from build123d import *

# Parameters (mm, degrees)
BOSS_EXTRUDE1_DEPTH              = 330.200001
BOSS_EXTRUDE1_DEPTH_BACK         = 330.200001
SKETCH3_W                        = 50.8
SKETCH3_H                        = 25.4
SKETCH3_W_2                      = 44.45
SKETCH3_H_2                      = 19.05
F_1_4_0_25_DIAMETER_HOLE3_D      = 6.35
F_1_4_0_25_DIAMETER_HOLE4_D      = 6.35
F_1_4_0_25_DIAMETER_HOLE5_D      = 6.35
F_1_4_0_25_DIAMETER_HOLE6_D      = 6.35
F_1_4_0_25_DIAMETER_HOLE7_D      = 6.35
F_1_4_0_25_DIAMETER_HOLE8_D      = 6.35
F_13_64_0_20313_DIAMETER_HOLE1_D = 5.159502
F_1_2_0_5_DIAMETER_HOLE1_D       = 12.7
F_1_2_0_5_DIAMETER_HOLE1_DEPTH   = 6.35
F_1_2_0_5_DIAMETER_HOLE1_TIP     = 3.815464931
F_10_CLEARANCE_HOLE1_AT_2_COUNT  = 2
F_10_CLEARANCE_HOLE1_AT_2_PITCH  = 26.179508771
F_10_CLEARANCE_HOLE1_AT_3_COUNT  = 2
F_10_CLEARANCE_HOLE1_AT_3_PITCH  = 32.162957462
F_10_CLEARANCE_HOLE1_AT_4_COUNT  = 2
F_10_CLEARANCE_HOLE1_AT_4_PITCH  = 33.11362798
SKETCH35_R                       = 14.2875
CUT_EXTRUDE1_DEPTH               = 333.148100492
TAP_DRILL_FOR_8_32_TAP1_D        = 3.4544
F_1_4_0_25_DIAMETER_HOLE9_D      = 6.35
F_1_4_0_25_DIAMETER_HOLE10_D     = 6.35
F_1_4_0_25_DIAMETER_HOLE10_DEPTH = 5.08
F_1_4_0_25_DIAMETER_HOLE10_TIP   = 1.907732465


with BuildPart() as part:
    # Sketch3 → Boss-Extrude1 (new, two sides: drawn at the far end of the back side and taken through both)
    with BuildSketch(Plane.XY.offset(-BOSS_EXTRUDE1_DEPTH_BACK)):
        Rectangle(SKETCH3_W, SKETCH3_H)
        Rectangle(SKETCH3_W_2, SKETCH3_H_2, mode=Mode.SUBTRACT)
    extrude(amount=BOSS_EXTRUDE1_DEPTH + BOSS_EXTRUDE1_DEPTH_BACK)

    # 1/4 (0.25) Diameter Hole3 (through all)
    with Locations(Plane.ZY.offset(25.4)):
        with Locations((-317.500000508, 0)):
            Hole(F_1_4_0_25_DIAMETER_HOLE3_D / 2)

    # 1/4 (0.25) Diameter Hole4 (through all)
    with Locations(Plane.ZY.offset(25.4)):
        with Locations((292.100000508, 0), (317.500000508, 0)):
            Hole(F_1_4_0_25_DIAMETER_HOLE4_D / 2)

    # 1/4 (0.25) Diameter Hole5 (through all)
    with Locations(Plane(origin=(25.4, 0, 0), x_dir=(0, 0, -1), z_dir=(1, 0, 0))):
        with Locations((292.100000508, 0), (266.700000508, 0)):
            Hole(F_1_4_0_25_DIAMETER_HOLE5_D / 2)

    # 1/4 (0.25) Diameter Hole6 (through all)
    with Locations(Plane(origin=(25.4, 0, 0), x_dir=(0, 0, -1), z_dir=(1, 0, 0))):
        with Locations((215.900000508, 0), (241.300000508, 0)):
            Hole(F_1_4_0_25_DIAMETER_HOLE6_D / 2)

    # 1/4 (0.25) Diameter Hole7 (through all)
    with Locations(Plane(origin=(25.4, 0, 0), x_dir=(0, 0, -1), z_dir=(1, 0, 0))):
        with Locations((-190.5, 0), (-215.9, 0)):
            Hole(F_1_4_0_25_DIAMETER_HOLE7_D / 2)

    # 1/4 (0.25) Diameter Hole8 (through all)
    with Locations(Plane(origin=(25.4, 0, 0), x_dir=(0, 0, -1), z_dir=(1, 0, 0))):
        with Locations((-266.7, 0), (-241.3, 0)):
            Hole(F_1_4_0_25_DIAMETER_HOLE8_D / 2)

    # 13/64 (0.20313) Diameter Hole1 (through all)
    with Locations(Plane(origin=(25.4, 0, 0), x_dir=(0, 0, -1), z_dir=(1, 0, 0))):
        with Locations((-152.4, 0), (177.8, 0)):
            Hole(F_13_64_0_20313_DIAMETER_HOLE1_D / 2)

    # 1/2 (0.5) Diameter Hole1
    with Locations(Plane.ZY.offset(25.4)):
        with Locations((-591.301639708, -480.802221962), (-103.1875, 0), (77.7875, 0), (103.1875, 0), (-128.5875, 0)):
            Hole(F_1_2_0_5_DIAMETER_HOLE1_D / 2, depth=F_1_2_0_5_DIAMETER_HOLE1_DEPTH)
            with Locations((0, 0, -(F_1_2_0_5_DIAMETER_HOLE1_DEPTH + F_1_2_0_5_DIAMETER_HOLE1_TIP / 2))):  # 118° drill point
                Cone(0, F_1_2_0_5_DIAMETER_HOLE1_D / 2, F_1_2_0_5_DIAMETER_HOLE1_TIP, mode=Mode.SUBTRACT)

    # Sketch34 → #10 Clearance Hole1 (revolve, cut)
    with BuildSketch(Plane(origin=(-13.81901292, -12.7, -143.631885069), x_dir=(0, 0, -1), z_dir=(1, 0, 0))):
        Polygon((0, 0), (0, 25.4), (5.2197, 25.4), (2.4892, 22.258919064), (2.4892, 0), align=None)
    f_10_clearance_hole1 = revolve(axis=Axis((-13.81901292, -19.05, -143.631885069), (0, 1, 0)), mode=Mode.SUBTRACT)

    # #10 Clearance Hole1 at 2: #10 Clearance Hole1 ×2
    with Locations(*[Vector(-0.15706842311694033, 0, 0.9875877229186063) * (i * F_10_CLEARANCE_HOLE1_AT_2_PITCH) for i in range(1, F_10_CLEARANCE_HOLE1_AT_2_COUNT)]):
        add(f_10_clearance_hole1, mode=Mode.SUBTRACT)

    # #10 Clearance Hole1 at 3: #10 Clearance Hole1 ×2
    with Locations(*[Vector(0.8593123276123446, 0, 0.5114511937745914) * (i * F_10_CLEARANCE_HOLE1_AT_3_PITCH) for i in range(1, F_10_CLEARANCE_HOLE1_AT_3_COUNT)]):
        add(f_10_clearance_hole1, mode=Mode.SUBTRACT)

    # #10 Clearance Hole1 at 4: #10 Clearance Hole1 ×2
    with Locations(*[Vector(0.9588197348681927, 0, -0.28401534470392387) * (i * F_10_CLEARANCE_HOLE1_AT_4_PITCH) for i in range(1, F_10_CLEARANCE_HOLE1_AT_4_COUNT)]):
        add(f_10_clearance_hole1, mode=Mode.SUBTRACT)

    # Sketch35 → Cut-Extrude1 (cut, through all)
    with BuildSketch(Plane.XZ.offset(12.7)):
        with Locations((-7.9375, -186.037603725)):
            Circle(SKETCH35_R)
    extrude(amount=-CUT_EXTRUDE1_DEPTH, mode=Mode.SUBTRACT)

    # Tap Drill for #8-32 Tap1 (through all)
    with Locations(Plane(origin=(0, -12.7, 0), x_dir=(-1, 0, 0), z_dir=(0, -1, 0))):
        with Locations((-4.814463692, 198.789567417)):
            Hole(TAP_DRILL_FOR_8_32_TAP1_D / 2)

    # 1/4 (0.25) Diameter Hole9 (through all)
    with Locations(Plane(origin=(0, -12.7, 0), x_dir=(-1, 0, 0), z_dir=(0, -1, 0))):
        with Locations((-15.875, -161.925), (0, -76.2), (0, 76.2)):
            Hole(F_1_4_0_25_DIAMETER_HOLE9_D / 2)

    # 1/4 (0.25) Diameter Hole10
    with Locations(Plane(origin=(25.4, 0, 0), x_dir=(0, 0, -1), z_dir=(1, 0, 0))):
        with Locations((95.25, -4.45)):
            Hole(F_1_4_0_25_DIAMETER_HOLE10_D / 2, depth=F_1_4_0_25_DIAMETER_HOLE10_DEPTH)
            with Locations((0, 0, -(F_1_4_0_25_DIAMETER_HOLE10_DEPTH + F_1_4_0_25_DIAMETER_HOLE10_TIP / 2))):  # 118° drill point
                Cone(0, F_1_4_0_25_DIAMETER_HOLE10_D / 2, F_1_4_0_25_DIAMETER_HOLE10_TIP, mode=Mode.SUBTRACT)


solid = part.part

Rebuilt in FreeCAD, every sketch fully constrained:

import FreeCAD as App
import Part
import Sketcher
Q = App.Units.Quantity

doc = App.newDocument("Part")
body = doc.addObject("PartDesign::Body", "Body")

# Sketch on XY plane
sketch1 = body.newObject("Sketcher::SketchObject", "Sketch")
sketch1.AttachmentSupport = (doc.getObject("XY_Plane"), [""])
sketch1.MapMode = "FlatFace"
sketch1.addGeometry([
    Part.LineSegment(App.Vector(-25, 13, 0), App.Vector(-25, -13, 0)),  # 0
    Part.LineSegment(App.Vector(-25, -13, 0), App.Vector(25, -13, 0)),  # 1
    Part.LineSegment(App.Vector(25, -13, 0), App.Vector(25, 13, 0)),  # 2
    Part.LineSegment(App.Vector(25, 13, 0), App.Vector(-25, 13, 0)),  # 3
    Part.LineSegment(App.Vector(22, -10, 0), App.Vector(-22, -10, 0)),  # 4
    Part.LineSegment(App.Vector(-22, -10, 0), App.Vector(-22, 10, 0)),  # 5
    Part.LineSegment(App.Vector(-22, 10, 0), App.Vector(22, 10, 0)),  # 6
    Part.LineSegment(App.Vector(22, 10, 0), App.Vector(22, -10, 0)),  # 7
], False)
sketch1.addConstraint([
    Sketcher.Constraint("Coincident", 0, 2, 1, 1),
    Sketcher.Constraint("Coincident", 1, 2, 2, 1),
    Sketcher.Constraint("Coincident", 2, 2, 3, 1),
    Sketcher.Constraint("Coincident", 3, 2, 0, 1),
    Sketcher.Constraint("Coincident", 4, 2, 5, 1),
    Sketcher.Constraint("Coincident", 5, 2, 6, 1),
    Sketcher.Constraint("Coincident", 6, 2, 7, 1),
    Sketcher.Constraint("Coincident", 7, 2, 4, 1),
    Sketcher.Constraint("Vertical", 0),
    Sketcher.Constraint("Horizontal", 1),
    Sketcher.Constraint("Vertical", 2),
    Sketcher.Constraint("Horizontal", 3),
    Sketcher.Constraint("Horizontal", 4),
    Sketcher.Constraint("Vertical", 5),
    Sketcher.Constraint("Horizontal", 6),
    Sketcher.Constraint("Vertical", 7),
    Sketcher.Constraint("Symmetric", 0, 2, 2, 2, -1, 1),
    Sketcher.Constraint("Symmetric", 4, 2, 6, 2, -1, 1),
    Sketcher.Constraint("DistanceX", 1, 1, 1, 2, Q("2 in")),
    Sketcher.Constraint("DistanceY", 0, 2, 0, 1, Q("1 in")),
    Sketcher.Constraint("DistanceX", 4, 2, 4, 1, Q("1.75 in")),
    Sketcher.Constraint("DistanceY", 5, 1, 5, 2, Q("0.75 in")),
])
pad1 = body.newObject("PartDesign::Pad", "Pad")
pad1.Profile = sketch1
pad1.Type = "TwoLengths"
pad1.Length = Q("13 in")
pad1.Length2 = Q("13 in")

# Sketch on YZ plane
sketch2 = body.newObject("Sketcher::SketchObject", "Sketch001")
sketch2.AttachmentSupport = (doc.getObject("YZ_Plane"), [""])
sketch2.MapMode = "FlatFace"
sketch2.AttachmentOffset = App.Placement(App.Vector(0, 0, -1 * 25.4), App.Rotation())
sketch2.addGeometry(Part.Circle(App.Vector(0, -317.5, 0), App.Vector(0, 0, 1), 3.2), False)
sketch2.addConstraint([
    Sketcher.Constraint("PointOnObject", 0, 3, -2),
    Sketcher.Constraint("Diameter", 0, Q("0.25 in")),
    Sketcher.Constraint("DistanceY", 0, 3, -1, 1, Q("12.5 in")),
])
doc.recompute()
hole = body.newObject("PartDesign::Hole", "Hole")
hole.Profile = sketch2
hole.ThreadType = "None"
hole.Diameter = Q("0.25 in")
hole.DepthType = "ThroughAll"
hole.Reversed = True

# Sketch on YZ plane
sketch3 = body.newObject("Sketcher::SketchObject", "Sketch002")
sketch3.AttachmentSupport = (doc.getObject("YZ_Plane"), [""])
sketch3.MapMode = "FlatFace"
sketch3.AttachmentOffset = App.Placement(App.Vector(0, 0, -1 * 25.4), App.Rotation())
sketch3.addGeometry([
    Part.Circle(App.Vector(0, 292.1, 0), App.Vector(0, 0, 1), 3.2),
    Part.Circle(App.Vector(0, 317.5, 0), App.Vector(0, 0, 1), 3.2),
], False)
sketch3.addConstraint([
    Sketcher.Constraint("Equal", 0, 1),
    Sketcher.Constraint("PointOnObject", 0, 3, -2),
    Sketcher.Constraint("PointOnObject", 1, 3, -2),
    Sketcher.Constraint("Diameter", 0, Q("0.25 in")),
    Sketcher.Constraint("DistanceY", 0, 3, 1, 3, Q("1 in")),
    Sketcher.Constraint("DistanceY", -1, 1, 0, 3, Q("11.5 in")),
])
doc.recompute()
hole2 = body.newObject("PartDesign::Hole", "Hole001")
hole2.Profile = sketch3
hole2.ThreadType = "None"
hole2.Diameter = Q("0.25 in")
hole2.DepthType = "ThroughAll"
hole2.Reversed = True

# Sketch on YZ plane
sketch4 = body.newObject("Sketcher::SketchObject", "Sketch003")
sketch4.AttachmentSupport = (doc.getObject("YZ_Plane"), [""])
sketch4.MapMode = "FlatFace"
sketch4.AttachmentOffset = App.Placement(App.Vector(0, 0, 1 * 25.4), App.Rotation())
sketch4.addGeometry([
    Part.Circle(App.Vector(0, -292.1, 0), App.Vector(0, 0, 1), 3.2),
    Part.Circle(App.Vector(0, -266.7, 0), App.Vector(0, 0, 1), 3.2),
], False)
sketch4.addConstraint([
    Sketcher.Constraint("Equal", 0, 1),
    Sketcher.Constraint("PointOnObject", 0, 3, -2),
    Sketcher.Constraint("PointOnObject", 1, 3, -2),
    Sketcher.Constraint("Diameter", 0, Q("0.25 in")),
    Sketcher.Constraint("DistanceY", 0, 3, 1, 3, Q("1 in")),
    Sketcher.Constraint("DistanceY", 0, 3, -1, 1, Q("11.5 in")),
])
doc.recompute()
hole3 = body.newObject("PartDesign::Hole", "Hole002")
hole3.Profile = sketch4
hole3.ThreadType = "None"
hole3.Diameter = Q("0.25 in")
hole3.DepthType = "ThroughAll"

# Sketch on YZ plane
sketch5 = body.newObject("Sketcher::SketchObject", "Sketch004")
sketch5.AttachmentSupport = (doc.getObject("YZ_Plane"), [""])
sketch5.MapMode = "FlatFace"
sketch5.AttachmentOffset = App.Placement(App.Vector(0, 0, 1 * 25.4), App.Rotation())
sketch5.addGeometry([
    Part.Circle(App.Vector(0, -215.9, 0), App.Vector(0, 0, 1), 3.2),
    Part.Circle(App.Vector(0, -241.3, 0), App.Vector(0, 0, 1), 3.2),
], False)
sketch5.addConstraint([
    Sketcher.Constraint("Equal", 0, 1),
    Sketcher.Constraint("PointOnObject", 0, 3, -2),
    Sketcher.Constraint("PointOnObject", 1, 3, -2),
    Sketcher.Constraint("Diameter", 0, Q("0.25 in")),
    Sketcher.Constraint("DistanceY", 1, 3, 0, 3, Q("1 in")),
    Sketcher.Constraint("DistanceY", 0, 3, -1, 1, Q("8.5 in")),
])
doc.recompute()
hole4 = body.newObject("PartDesign::Hole", "Hole003")
hole4.Profile = sketch5
hole4.ThreadType = "None"
hole4.Diameter = Q("0.25 in")
hole4.DepthType = "ThroughAll"

# Sketch on YZ plane
sketch6 = body.newObject("Sketcher::SketchObject", "Sketch005")
sketch6.AttachmentSupport = (doc.getObject("YZ_Plane"), [""])
sketch6.MapMode = "FlatFace"
sketch6.AttachmentOffset = App.Placement(App.Vector(0, 0, 1 * 25.4), App.Rotation())
sketch6.addGeometry([
    Part.Circle(App.Vector(0, 190.5, 0), App.Vector(0, 0, 1), 3.2),
    Part.Circle(App.Vector(0, 215.9, 0), App.Vector(0, 0, 1), 3.2),
], False)
sketch6.addConstraint([
    Sketcher.Constraint("Equal", 0, 1),
    Sketcher.Constraint("PointOnObject", 0, 3, -2),
    Sketcher.Constraint("PointOnObject", 1, 3, -2),
    Sketcher.Constraint("Diameter", 0, Q("0.25 in")),
    Sketcher.Constraint("DistanceY", 0, 3, 1, 3, Q("1 in")),
    Sketcher.Constraint("DistanceY", -1, 1, 0, 3, Q("7.5 in")),
])
doc.recompute()
hole5 = body.newObject("PartDesign::Hole", "Hole004")
hole5.Profile = sketch6
hole5.ThreadType = "None"
hole5.Diameter = Q("0.25 in")
hole5.DepthType = "ThroughAll"

# Sketch on YZ plane
sketch7 = body.newObject("Sketcher::SketchObject", "Sketch006")
sketch7.AttachmentSupport = (doc.getObject("YZ_Plane"), [""])
sketch7.MapMode = "FlatFace"
sketch7.AttachmentOffset = App.Placement(App.Vector(0, 0, 1 * 25.4), App.Rotation())
sketch7.addGeometry([
    Part.Circle(App.Vector(0, 266.7, 0), App.Vector(0, 0, 1), 3.2),
    Part.Circle(App.Vector(0, 241.3, 0), App.Vector(0, 0, 1), 3.2),
], False)
sketch7.addConstraint([
    Sketcher.Constraint("Equal", 0, 1),
    Sketcher.Constraint("PointOnObject", 0, 3, -2),
    Sketcher.Constraint("PointOnObject", 1, 3, -2),
    Sketcher.Constraint("Diameter", 0, Q("0.25 in")),
    Sketcher.Constraint("DistanceY", 1, 3, 0, 3, Q("1 in")),
    Sketcher.Constraint("DistanceY", -1, 1, 0, 3, Q("10.5 in")),
])
doc.recompute()
hole6 = body.newObject("PartDesign::Hole", "Hole005")
hole6.Profile = sketch7
hole6.ThreadType = "None"
hole6.Diameter = Q("0.25 in")
hole6.DepthType = "ThroughAll"

# Sketch on YZ plane
sketch8 = body.newObject("Sketcher::SketchObject", "Sketch007")
sketch8.AttachmentSupport = (doc.getObject("YZ_Plane"), [""])
sketch8.MapMode = "FlatFace"
sketch8.AttachmentOffset = App.Placement(App.Vector(0, 0, 1 * 25.4), App.Rotation())
sketch8.addGeometry([
    Part.Circle(App.Vector(0, 152.4, 0), App.Vector(0, 0, 1), 2.6),
    Part.Circle(App.Vector(0, -177.8, 0), App.Vector(0, 0, 1), 2.6),
], False)
sketch8.addConstraint([
    Sketcher.Constraint("Equal", 0, 1),
    Sketcher.Constraint("PointOnObject", 0, 3, -2),
    Sketcher.Constraint("PointOnObject", 1, 3, -2),
    Sketcher.Constraint("DistanceY", -1, 1, 0, 3, Q("6 in")),
    Sketcher.Constraint("DistanceY", 1, 3, -1, 1, Q("7 in")),
    Sketcher.Constraint("Diameter", 0, 5.159502),
])
doc.recompute()
hole7 = body.newObject("PartDesign::Hole", "Hole006")
hole7.Profile = sketch8
hole7.ThreadType = "None"
hole7.Diameter = 5.159502
hole7.DepthType = "ThroughAll"

# Sketch on YZ plane
sketch9 = body.newObject("Sketcher::SketchObject", "Sketch008")
sketch9.AttachmentSupport = (doc.getObject("YZ_Plane"), [""])
sketch9.MapMode = "FlatFace"
sketch9.AttachmentOffset = App.Placement(App.Vector(0, 0, -1 * 25.4), App.Rotation())
sketch9.addGeometry([
    Part.Circle(App.Vector(-481, -591, 0), App.Vector(0, 0, 1), 6),  # 0
    Part.Circle(App.Vector(0, -103, 0), App.Vector(0, 0, 1), 6),  # 1
    Part.Circle(App.Vector(0, 78, 0), App.Vector(0, 0, 1), 6),  # 2
    Part.Circle(App.Vector(0, 103, 0), App.Vector(0, 0, 1), 6),  # 3
    Part.Circle(App.Vector(0, -129, 0), App.Vector(0, 0, 1), 6),  # 4
], False)
sketch9.addConstraint([
    Sketcher.Constraint("Equal", 0, 1),
    Sketcher.Constraint("Equal", 1, 2),
    Sketcher.Constraint("Equal", 2, 3),
    Sketcher.Constraint("Equal", 3, 4),
    Sketcher.Constraint("Symmetric", 1, 3, 3, 3, -1, 1),
    Sketcher.Constraint("PointOnObject", 1, 3, -2),
    Sketcher.Constraint("PointOnObject", 2, 3, -2),
    Sketcher.Constraint("PointOnObject", 4, 3, -2),
    Sketcher.Constraint("Diameter", 0, Q("0.5 in")),
    Sketcher.Constraint("DistanceY", 2, 3, 3, 3, Q("1 in")),
    Sketcher.Constraint("DistanceY", 4, 3, 1, 3, Q("1 in")),
    Sketcher.Constraint("DistanceY", 1, 3, -1, 1, Q("4.0625 in")),
    Sketcher.Constraint("DistanceX", 0, 3, -1, 1, 480.802222),
    Sketcher.Constraint("DistanceY", 0, 3, -1, 1, 591.30164),
])
doc.recompute()
hole8 = body.newObject("PartDesign::Hole", "Hole007")
hole8.Profile = sketch9
hole8.ThreadType = "None"
hole8.Diameter = Q("0.5 in")
hole8.DepthType = "Dimension"
hole8.Depth = Q("0.25 in")
hole8.DrillPoint = "Angled"
hole8.DrillPointAngle = 118
hole8.Reversed = True

# Sketch on YZ plane
sketch10 = body.newObject("Sketcher::SketchObject", "Sketch009")
sketch10.AttachmentSupport = (doc.getObject("YZ_Plane"), [""])
sketch10.MapMode = "FlatFace"
sketch10.AttachmentOffset = App.Placement(App.Vector(0, 0, -13.819013), App.Rotation())
sketch10.addGeometry([
    Part.LineSegment(App.Vector(12.7, -143.6, 0), App.Vector(-12.7, -143.6, 0)),  # 0
    Part.LineSegment(App.Vector(-12.7, -143.6, 0), App.Vector(-12.7, -146.1, 0)),  # 1
    Part.LineSegment(App.Vector(-12.7, -146.1, 0), App.Vector(9.6, -146.1, 0)),  # 2
    Part.LineSegment(App.Vector(9.6, -146.1, 0), App.Vector(12.7, -148.9, 0)),  # 3
    Part.LineSegment(App.Vector(12.7, -148.9, 0), App.Vector(12.7, -143.6, 0)),  # 4
], False)
sketch10.addGeometry(Part.LineSegment(App.Vector(-12.7, -143.6, 0), App.Vector(12.7, -143.6, 0)), True)  # axis
sketch10.addConstraint([
    Sketcher.Constraint("Coincident", 0, 2, 1, 1),
    Sketcher.Constraint("Coincident", 1, 2, 2, 1),
    Sketcher.Constraint("Coincident", 2, 2, 3, 1),
    Sketcher.Constraint("Coincident", 3, 2, 4, 1),
    Sketcher.Constraint("Coincident", 4, 2, 0, 1),
    Sketcher.Constraint("Horizontal", 0),
    Sketcher.Constraint("Vertical", 1),
    Sketcher.Constraint("Horizontal", 2),
    Sketcher.Constraint("Vertical", 4),
    Sketcher.Constraint("Horizontal", 5),
    Sketcher.Constraint("Coincident", 5, 1, 0, 2),
    Sketcher.Constraint("Vertical", 3, 2, 5, 2),
    Sketcher.Constraint("DistanceX", 0, 2, 0, 1, Q("1 in")),
    Sketcher.Constraint("Angle", 3, Q("-41 deg")),
    Sketcher.Constraint("DistanceX", 0, 2, -1, 1, Q("0.5 in")),
    Sketcher.Constraint("DistanceY", 1, 2, 1, 1, Q("0.098 in")),
    Sketcher.Constraint("DistanceY", 4, 1, 4, 2, Q("0.2055 in")),
    Sketcher.Constraint("DistanceY", 0, 2, -1, 1, 143.631885),
])
groove = body.newObject("PartDesign::Groove", "Groove")
groove.Profile = sketch10
groove.ReferenceAxis = (sketch10, ["Axis0"])
groove.Angle = 360
doc.recompute()

datumline = body.newObject("PartDesign::Line", "DatumLine")
datumline.Placement = App.Placement(App.Vector(0, 0, 0), App.Rotation(App.Vector(0, 0, 1), App.Vector(-0.157068423, 0, 0.987587723)))
linearpattern = body.newObject("PartDesign::LinearPattern", "LinearPattern")
linearpattern.Originals = [groove]
linearpattern.Direction = (datumline, [""])
linearpattern.Mode = "offset"
linearpattern.Offset = 26.179509
linearpattern.Occurrences = 2
body.Tip = linearpattern
doc.recompute()

datumline2 = body.newObject("PartDesign::Line", "DatumLine001")
datumline2.Placement = App.Placement(App.Vector(0, 0, 0), App.Rotation(App.Vector(0, 0, 1), App.Vector(0.859312328, 0, 0.511451194)))
linearpattern2 = body.newObject("PartDesign::LinearPattern", "LinearPattern001")
linearpattern2.Originals = [groove]
linearpattern2.Direction = (datumline2, [""])
linearpattern2.Mode = "offset"
linearpattern2.Offset = 32.162957
linearpattern2.Occurrences = 2
body.Tip = linearpattern2
doc.recompute()

datumline3 = body.newObject("PartDesign::Line", "DatumLine002")
datumline3.Placement = App.Placement(App.Vector(0, 0, 0), App.Rotation(App.Vector(0, 0, 1), App.Vector(0.958819735, 0, -0.284015345)))
linearpattern3 = body.newObject("PartDesign::LinearPattern", "LinearPattern002")
linearpattern3.Originals = [groove]
linearpattern3.Direction = (datumline3, [""])
linearpattern3.Mode = "offset"
linearpattern3.Offset = 33.113628
linearpattern3.Occurrences = 2
body.Tip = linearpattern3

# Sketch on XZ plane
sketch11 = body.newObject("Sketcher::SketchObject", "Sketch010")
sketch11.AttachmentSupport = (doc.getObject("XZ_Plane"), [""])
sketch11.MapMode = "FlatFace"
sketch11.AttachmentOffset = App.Placement(App.Vector(0, 0, 0.5 * 25.4), App.Rotation())
sketch11.addGeometry(Part.Circle(App.Vector(-8, -186, 0), App.Vector(0, 0, 1), 14), False)
sketch11.addConstraint([
    Sketcher.Constraint("Diameter", 0, Q("1.125 in")),
    Sketcher.Constraint("DistanceX", 0, 3, -1, 1, Q("0.3125 in")),
    Sketcher.Constraint("DistanceY", 0, 3, -1, 1, 186.037604),
])
pocket1 = body.newObject("PartDesign::Pocket", "Pocket")
pocket1.Profile = sketch11
pocket1.Type = "ThroughAll"

# Sketch on XZ plane
sketch12 = body.newObject("Sketcher::SketchObject", "Sketch011")
sketch12.AttachmentSupport = (doc.getObject("XZ_Plane"), [""])
sketch12.MapMode = "FlatFace"
sketch12.AttachmentOffset = App.Placement(App.Vector(0, 0, 0.5 * 25.4), App.Rotation())
sketch12.addGeometry(Part.Circle(App.Vector(4.8, -198.8, 0), App.Vector(0, 0, 1), 1.7), False)
sketch12.addConstraint([
    Sketcher.Constraint("Diameter", 0, Q("0.136 in")),
    Sketcher.Constraint("DistanceX", -1, 1, 0, 3, 4.814464),
    Sketcher.Constraint("DistanceY", 0, 3, -1, 1, 198.789567),
])
doc.recompute()
hole9 = body.newObject("PartDesign::Hole", "Hole008")
hole9.Profile = sketch12
hole9.ThreadType = "None"
hole9.Diameter = Q("0.136 in")
hole9.DepthType = "ThroughAll"

# Sketch on XZ plane
sketch13 = body.newObject("Sketcher::SketchObject", "Sketch012")
sketch13.AttachmentSupport = (doc.getObject("XZ_Plane"), [""])
sketch13.MapMode = "FlatFace"
sketch13.AttachmentOffset = App.Placement(App.Vector(0, 0, 0.5 * 25.4), App.Rotation())
sketch13.addGeometry([
    Part.Circle(App.Vector(15.9, 161.9, 0), App.Vector(0, 0, 1), 3.2),
    Part.Circle(App.Vector(0, 76.2, 0), App.Vector(0, 0, 1), 3.2),
    Part.Circle(App.Vector(0, -76.2, 0), App.Vector(0, 0, 1), 3.2),
], False)
sketch13.addConstraint([
    Sketcher.Constraint("Equal", 0, 1),
    Sketcher.Constraint("Equal", 1, 2),
    Sketcher.Constraint("Symmetric", 1, 3, 2, 3, -1, 1),
    Sketcher.Constraint("PointOnObject", 1, 3, -2),
    Sketcher.Constraint("Diameter", 0, Q("0.25 in")),
    Sketcher.Constraint("DistanceY", -1, 1, 1, 3, Q("3 in")),
    Sketcher.Constraint("DistanceX", -1, 1, 0, 3, Q("0.625 in")),
    Sketcher.Constraint("DistanceY", -1, 1, 0, 3, Q("6.375 in")),
])
doc.recompute()
hole10 = body.newObject("PartDesign::Hole", "Hole009")
hole10.Profile = sketch13
hole10.ThreadType = "None"
hole10.Diameter = Q("0.25 in")
hole10.DepthType = "ThroughAll"

# Sketch on YZ plane
sketch14 = body.newObject("Sketcher::SketchObject", "Sketch013")
sketch14.AttachmentSupport = (doc.getObject("YZ_Plane"), [""])
sketch14.MapMode = "FlatFace"
sketch14.AttachmentOffset = App.Placement(App.Vector(0, 0, 1 * 25.4), App.Rotation())
sketch14.addGeometry(Part.Circle(App.Vector(-4.5, -95.2, 0), App.Vector(0, 0, 1), 3.2), False)
sketch14.addConstraint([
    Sketcher.Constraint("Diameter", 0, Q("0.25 in")),
    Sketcher.Constraint("DistanceY", 0, 3, -1, 1, Q("3.75 in")),
    Sketcher.Constraint("DistanceX", 0, 3, -1, 1, 4.45),
])
doc.recompute()
hole11 = body.newObject("PartDesign::Hole", "Hole010")
hole11.Profile = sketch14
hole11.ThreadType = "None"
hole11.Diameter = Q("0.25 in")
hole11.DepthType = "Dimension"
hole11.Depth = Q("0.2 in")
hole11.DrillPoint = "Angled"
hole11.DrillPointAngle = 118

doc.recompute()
